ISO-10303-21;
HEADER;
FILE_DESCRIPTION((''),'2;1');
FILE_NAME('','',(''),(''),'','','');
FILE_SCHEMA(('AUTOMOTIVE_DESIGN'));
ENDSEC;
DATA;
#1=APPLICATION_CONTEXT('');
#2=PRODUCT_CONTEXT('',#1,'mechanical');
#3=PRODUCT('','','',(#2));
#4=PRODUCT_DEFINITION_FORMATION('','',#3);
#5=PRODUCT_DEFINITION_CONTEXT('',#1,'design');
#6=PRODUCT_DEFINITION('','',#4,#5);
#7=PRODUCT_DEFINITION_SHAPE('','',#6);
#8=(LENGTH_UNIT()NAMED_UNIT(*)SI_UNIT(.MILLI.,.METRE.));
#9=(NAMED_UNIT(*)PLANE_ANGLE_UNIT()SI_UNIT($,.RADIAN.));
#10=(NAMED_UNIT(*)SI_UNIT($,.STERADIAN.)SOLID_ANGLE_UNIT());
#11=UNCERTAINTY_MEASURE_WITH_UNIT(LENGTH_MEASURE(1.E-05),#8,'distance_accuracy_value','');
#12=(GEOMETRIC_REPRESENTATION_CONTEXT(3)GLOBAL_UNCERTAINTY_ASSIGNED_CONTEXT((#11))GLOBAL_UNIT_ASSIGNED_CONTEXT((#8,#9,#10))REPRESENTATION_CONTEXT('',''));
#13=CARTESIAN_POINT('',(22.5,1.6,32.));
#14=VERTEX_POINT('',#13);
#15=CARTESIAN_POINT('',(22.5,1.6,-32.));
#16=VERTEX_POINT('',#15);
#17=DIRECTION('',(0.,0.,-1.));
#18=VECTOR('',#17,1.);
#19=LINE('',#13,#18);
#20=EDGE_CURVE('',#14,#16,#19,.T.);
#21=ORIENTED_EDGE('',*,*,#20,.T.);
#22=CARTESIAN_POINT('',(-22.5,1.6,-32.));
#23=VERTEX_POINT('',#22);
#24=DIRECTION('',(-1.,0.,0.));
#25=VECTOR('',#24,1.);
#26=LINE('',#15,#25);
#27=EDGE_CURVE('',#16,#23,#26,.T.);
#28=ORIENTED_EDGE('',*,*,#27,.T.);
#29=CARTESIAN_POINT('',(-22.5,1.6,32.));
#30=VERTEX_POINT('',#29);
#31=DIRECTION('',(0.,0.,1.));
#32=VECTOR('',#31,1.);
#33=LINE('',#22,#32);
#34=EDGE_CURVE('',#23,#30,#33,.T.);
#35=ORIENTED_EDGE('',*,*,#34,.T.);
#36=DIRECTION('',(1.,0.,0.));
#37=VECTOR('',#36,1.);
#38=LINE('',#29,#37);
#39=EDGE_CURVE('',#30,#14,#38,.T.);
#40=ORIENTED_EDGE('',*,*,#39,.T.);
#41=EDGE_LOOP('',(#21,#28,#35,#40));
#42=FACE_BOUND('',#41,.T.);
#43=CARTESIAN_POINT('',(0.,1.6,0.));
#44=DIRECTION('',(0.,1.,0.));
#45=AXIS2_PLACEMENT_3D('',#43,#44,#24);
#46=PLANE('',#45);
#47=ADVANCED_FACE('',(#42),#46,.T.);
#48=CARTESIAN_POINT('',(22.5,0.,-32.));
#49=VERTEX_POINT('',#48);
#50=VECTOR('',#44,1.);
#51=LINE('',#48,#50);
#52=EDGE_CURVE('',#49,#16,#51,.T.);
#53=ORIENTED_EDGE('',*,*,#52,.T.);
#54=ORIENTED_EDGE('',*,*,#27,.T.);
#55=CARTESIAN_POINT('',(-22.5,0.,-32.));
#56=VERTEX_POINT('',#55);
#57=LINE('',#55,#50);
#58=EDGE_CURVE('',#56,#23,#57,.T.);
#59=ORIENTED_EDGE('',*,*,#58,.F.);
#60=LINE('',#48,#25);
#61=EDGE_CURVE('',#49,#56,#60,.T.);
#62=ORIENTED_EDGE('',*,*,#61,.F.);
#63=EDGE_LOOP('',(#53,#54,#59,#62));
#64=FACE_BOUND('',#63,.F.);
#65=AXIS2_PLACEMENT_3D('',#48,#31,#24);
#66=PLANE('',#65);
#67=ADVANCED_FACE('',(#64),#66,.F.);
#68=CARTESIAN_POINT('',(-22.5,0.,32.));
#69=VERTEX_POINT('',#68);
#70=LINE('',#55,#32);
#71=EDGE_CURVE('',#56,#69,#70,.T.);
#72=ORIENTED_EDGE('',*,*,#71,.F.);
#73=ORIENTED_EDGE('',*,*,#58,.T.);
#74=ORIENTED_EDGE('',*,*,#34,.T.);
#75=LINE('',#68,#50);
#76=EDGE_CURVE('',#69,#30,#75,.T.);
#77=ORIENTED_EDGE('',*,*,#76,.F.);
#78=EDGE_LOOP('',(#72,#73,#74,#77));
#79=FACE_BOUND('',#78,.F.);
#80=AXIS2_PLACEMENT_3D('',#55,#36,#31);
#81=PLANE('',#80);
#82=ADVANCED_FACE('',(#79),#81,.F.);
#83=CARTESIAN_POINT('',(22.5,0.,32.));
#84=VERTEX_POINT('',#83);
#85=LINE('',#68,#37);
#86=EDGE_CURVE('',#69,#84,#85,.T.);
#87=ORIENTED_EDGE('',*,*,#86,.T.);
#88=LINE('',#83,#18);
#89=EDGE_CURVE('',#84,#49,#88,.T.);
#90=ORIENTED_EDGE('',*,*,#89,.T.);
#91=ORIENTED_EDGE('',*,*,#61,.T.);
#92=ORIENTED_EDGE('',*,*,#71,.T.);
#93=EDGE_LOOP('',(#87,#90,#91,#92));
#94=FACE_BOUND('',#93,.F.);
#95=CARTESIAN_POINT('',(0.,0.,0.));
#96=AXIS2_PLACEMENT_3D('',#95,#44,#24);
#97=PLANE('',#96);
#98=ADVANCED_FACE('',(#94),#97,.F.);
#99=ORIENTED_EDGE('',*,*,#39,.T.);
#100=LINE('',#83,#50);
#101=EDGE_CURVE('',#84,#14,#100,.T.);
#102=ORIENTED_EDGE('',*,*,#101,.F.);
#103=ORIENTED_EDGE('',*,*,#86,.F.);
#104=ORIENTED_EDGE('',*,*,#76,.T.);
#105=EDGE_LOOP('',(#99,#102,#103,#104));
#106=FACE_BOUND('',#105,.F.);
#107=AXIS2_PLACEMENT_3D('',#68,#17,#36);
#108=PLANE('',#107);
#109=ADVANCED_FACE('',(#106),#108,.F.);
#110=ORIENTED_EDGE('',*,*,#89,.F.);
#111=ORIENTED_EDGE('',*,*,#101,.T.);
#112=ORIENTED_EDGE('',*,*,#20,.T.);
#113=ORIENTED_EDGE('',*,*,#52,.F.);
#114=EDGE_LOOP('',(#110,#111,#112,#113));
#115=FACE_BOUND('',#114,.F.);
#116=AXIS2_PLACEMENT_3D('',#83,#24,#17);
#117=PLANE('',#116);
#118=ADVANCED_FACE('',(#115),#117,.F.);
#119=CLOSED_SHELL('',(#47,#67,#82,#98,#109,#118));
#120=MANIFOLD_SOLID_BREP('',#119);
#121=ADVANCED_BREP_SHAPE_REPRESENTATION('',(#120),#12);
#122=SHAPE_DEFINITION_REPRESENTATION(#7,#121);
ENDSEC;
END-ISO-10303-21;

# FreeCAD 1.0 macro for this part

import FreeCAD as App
import Part
import Sketcher
from FreeCAD import Vector
Q = App.Units.Quantity

doc = App.newDocument("Part")
body = doc.addObject("PartDesign::Body", "Body")

# Sketch on XZ plane
sketch1 = body.newObject("Sketcher::SketchObject", "Sketch")
sketch1.AttachmentSupport = (doc.getObject("XZ_Plane"), [""])
sketch1.MapMode = "FlatFace"
sketch1.addGeometry([
    Part.LineSegment(Vector(-22.5, -32, 0), Vector(-22.5, 32, 0)),
    Part.LineSegment(Vector(-22.5, 32, 0), Vector(22.5, 32, 0)),
    Part.LineSegment(Vector(22.5, 32, 0), Vector(22.5, -32, 0)),
    Part.LineSegment(Vector(22.5, -32, 0), Vector(-22.5, -32, 0)),
], False)
sketch1.addConstraint([
    Sketcher.Constraint("Coincident", 0, 2, 1, 1),
    Sketcher.Constraint("Coincident", 1, 2, 2, 1),
    Sketcher.Constraint("Coincident", 2, 2, 3, 1),
    Sketcher.Constraint("Coincident", 3, 2, 0, 1),
    Sketcher.Constraint("Vertical", 0),
    Sketcher.Constraint("Horizontal", 1),
    Sketcher.Constraint("Vertical", 2),
    Sketcher.Constraint("Horizontal", 3),
    Sketcher.Constraint("Symmetric", 0, 2, 2, 2, -1, 1),
    Sketcher.Constraint("DistanceX", 1, 1, 1, 2, Q("45 mm")),
    Sketcher.Constraint("DistanceY", 0, 1, 0, 2, Q("64 mm")),
])
pad1 = body.newObject("PartDesign::Pad", "Pad")
pad1.Profile = sketch1
pad1.Length = 1.6
pad1.Reversed = True

doc.recompute()
